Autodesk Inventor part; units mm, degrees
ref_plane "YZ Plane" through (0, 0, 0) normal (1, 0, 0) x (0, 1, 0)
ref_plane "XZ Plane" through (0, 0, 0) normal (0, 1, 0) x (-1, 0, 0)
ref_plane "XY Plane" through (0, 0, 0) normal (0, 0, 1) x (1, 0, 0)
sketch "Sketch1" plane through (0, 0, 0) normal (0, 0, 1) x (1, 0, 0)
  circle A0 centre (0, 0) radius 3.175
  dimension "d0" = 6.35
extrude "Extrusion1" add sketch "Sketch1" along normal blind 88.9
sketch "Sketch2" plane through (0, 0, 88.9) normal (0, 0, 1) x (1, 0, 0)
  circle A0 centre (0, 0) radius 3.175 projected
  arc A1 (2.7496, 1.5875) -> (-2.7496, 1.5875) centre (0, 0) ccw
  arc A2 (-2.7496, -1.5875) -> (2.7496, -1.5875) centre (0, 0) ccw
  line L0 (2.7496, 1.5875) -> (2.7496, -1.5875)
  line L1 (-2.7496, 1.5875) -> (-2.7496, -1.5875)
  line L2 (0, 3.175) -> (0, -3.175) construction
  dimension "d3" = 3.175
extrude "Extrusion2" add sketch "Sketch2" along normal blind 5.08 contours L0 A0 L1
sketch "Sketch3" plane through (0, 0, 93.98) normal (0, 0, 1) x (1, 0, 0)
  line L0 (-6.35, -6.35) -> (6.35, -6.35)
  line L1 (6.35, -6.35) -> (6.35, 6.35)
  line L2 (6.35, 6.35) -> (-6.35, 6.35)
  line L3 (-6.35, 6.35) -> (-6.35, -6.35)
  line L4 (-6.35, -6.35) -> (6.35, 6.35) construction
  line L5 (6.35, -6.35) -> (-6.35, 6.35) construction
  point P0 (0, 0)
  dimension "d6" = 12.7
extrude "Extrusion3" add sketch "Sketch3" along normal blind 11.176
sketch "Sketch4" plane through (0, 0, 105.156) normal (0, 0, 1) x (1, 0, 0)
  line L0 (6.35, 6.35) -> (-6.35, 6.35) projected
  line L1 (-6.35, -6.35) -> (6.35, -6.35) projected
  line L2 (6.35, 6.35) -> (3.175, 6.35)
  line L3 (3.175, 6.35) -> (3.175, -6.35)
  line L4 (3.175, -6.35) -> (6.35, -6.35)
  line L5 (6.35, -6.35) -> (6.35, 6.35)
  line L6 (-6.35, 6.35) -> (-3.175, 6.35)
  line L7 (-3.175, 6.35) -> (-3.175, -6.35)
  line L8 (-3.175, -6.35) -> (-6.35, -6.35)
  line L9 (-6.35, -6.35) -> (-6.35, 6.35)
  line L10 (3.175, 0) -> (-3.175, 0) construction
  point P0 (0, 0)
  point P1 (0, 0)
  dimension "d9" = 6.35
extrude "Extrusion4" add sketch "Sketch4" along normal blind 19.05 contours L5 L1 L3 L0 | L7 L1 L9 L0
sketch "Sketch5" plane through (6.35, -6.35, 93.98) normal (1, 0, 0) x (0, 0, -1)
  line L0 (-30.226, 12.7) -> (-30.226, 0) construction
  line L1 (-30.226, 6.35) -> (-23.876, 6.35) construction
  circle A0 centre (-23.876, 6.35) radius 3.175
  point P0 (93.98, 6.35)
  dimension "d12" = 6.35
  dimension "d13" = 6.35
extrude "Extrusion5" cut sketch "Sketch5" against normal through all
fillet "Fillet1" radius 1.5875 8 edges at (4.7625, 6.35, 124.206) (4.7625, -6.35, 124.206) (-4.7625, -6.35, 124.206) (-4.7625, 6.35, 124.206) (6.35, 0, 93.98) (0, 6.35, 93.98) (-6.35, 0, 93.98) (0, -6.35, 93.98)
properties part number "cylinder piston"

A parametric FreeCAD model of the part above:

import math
import FreeCAD as App
import Part
import Sketcher

V = App.Vector
Q = App.Units.Quantity


def edges_at(feature, points):
    """Names of the edges that pass closest to the given points."""
    edges = feature.Shape.Edges
    near = lambda p: min(range(len(edges)), key=lambda i: edges[i].distToShape(Part.Vertex(*p))[0])
    return sorted({f"Edge{near(p) + 1}" for p in points})


def add_polygon(sketch, points):
    """Adds a closed chain of lines whose ends are joined by coincident constraints."""
    first, n = sketch.GeometryCount, len(points)
    for a, b in zip(points, points[1:] + points[:1]):
        sketch.addGeometry(Part.LineSegment(App.Vector(*a, 0), App.Vector(*b, 0)), False)
    for i in range(n):
        sketch.addConstraint(Sketcher.Constraint("Coincident", first + i, 2, first + (i + 1) % n, 1))

doc = App.newDocument("Part")
params = doc.addObject("Spreadsheet::Sheet", "Params")
for row, (alias, value) in enumerate([
    ("sketch1_diameter", "0.25 in"),
    ("pad1_length", "3.5 in"),
    ("sketch2_radius", "0.125 in"),
    ("sketch2_height", "0.125 in"),
    ("pad2_length", "0.2 in"),
    ("sketch3_width", "0.5 in"),
    ("pad3_length", "0.44 in"),
    ("pad4_length", "0.75 in"),
    ("sketch5_diameter", "0.25 in"),
    ("fillet_radius", "0.0625 in"),
], start=1):
    params.set(f"A{row}", alias)
    params.set(f"B{row}", "=" + value)
    params.setAlias(f"B{row}", alias)

body = doc.addObject("PartDesign::Body", "Body")

sketch1 = body.newObject("Sketcher::SketchObject", "Sketch")
sketch1.AttachmentSupport = (doc.getObject("XY_Plane"), [""])
sketch1.MapMode = "FlatFace"
sketch1.addGeometry(Part.Circle(V(0, 0, 0), V(0, 0, 1), 3.2), False)
sketch1.addConstraint([
    Sketcher.Constraint("Coincident", 0, 3, -1, 1),
    Sketcher.Constraint("Diameter", 0, Q("0.25 in")),
])
sketch1.setExpression("Constraints[1]", "Params.sketch1_diameter")
pad1 = body.newObject("PartDesign::Pad", "Pad")
pad1.Profile = sketch1
pad1.setExpression("Length", "Params.pad1_length")

sketch2 = body.newObject("Sketcher::SketchObject", "Sketch001")
sketch2.AttachmentSupport = (doc.getObject("XY_Plane"), [""])
sketch2.MapMode = "FlatFace"
sketch2.AttachmentOffset = App.Placement(V(0, 0, 3.5 * 25.4), App.Rotation())
sketch2.addGeometry([
    Part.LineSegment(V(2.7, -1.6, 0), V(2.7, 1.6, 0)),
    Part.ArcOfCircle(Part.Circle(V(0, 0, 0), V(0, 0, 1), 3.2), math.radians(30), math.radians(150)),
    Part.LineSegment(V(-2.7, 1.6, 0), V(-2.7, -1.6, 0)),
    Part.ArcOfCircle(Part.Circle(V(0, 0, 0), V(0, 0, 1), 3.2), math.radians(-150), math.radians(-30)),
], False)
sketch2.addConstraint([
    Sketcher.Constraint("Coincident", 0, 2, 1, 1),
    Sketcher.Constraint("Coincident", 1, 2, 2, 1),
    Sketcher.Constraint("Coincident", 2, 2, 3, 1),
    Sketcher.Constraint("Coincident", 3, 2, 0, 1),
    Sketcher.Constraint("Vertical", 0),
    Sketcher.Constraint("Vertical", 2),
    Sketcher.Constraint("Coincident", 1, 3, -1, 1),
    Sketcher.Constraint("Coincident", 3, 3, -1, 1),
    Sketcher.Constraint("Equal", 1, 3),
    Sketcher.Constraint("Horizontal", 0, 2, 1, 2),
    Sketcher.Constraint("Radius", 1, Q("0.125 in")),
    Sketcher.Constraint("DistanceY", 0, 1, 0, 2, Q("0.125 in")),
])
sketch2.setExpression("Constraints[10]", "Params.sketch2_radius")
sketch2.setExpression("Constraints[11]", "Params.sketch2_height")
pad2 = body.newObject("PartDesign::Pad", "Pad001")
pad2.Profile = sketch2
pad2.setExpression("Length", "Params.pad2_length")

sketch3 = body.newObject("Sketcher::SketchObject", "Sketch002")
sketch3.AttachmentSupport = (doc.getObject("XY_Plane"), [""])
sketch3.MapMode = "FlatFace"
sketch3.AttachmentOffset = App.Placement(V(0, 0, 3.7 * 25.4), App.Rotation())
add_polygon(sketch3, [(-6, 6), (-6, -6), (6, -6), (6, 6)])
sketch3.addConstraint([
    Sketcher.Constraint("Vertical", 0),
    Sketcher.Constraint("Horizontal", 1),
    Sketcher.Constraint("Vertical", 2),
    Sketcher.Constraint("Horizontal", 3),
    Sketcher.Constraint("Symmetric", 0, 2, 2, 2, -1, 1),
    Sketcher.Constraint("Equal", 3, 0),
    Sketcher.Constraint("DistanceX", 1, 1, 1, 2, Q("0.5 in")),
])
sketch3.setExpression("Constraints[10]", "Params.sketch3_width")
pad3 = body.newObject("PartDesign::Pad", "Pad002")
pad3.Profile = sketch3
pad3.setExpression("Length", "Params.pad3_length")

sketch4 = body.newObject("Sketcher::SketchObject", "Sketch003")
sketch4.AttachmentSupport = (doc.getObject("XY_Plane"), [""])
sketch4.MapMode = "FlatFace"
sketch4.AttachmentOffset = App.Placement(V(0, 0, 4.14 * 25.4), App.Rotation())
add_polygon(sketch4, [(6.3, -6.3), (6.3, 6.3), (3.2, 6.3), (3.2, -6.3)])
add_polygon(sketch4, [(-3.2, -6.3), (-3.2, 6.3), (-6.3, 6.3), (-6.3, -6.3)])
sketch4.addConstraint([
    Sketcher.Constraint("Vertical", 0),
    Sketcher.Constraint("Horizontal", 1),
    Sketcher.Constraint("Vertical", 2),
    Sketcher.Constraint("Horizontal", 3),
    Sketcher.Constraint("Vertical", 4),
    Sketcher.Constraint("Horizontal", 5),
    Sketcher.Constraint("Vertical", 6),
    Sketcher.Constraint("Horizontal", 7),
    Sketcher.Constraint("Symmetric", 2, 2, 4, 2, -1, 1),
    Sketcher.Constraint("Symmetric", 0, 2, 6, 2, -1, 1),
    Sketcher.Constraint("Horizontal", 1, 2, 4, 2),
    Sketcher.Constraint("DistanceX", -1, 1, 0, 2, Q("0.25 in")),
    Sketcher.Constraint("DistanceY", -1, 1, 0, 2, Q("0.25 in")),
    Sketcher.Constraint("DistanceX", 4, 2, 1, 2, Q("0.25 in")),
])
pad4 = body.newObject("PartDesign::Pad", "Pad003")
pad4.Profile = sketch4
pad4.setExpression("Length", "Params.pad4_length")

sketch5 = body.newObject("Sketcher::SketchObject", "Sketch004")
sketch5.AttachmentSupport = (doc.getObject("YZ_Plane"), [""])
sketch5.MapMode = "FlatFace"
sketch5.AttachmentOffset = App.Placement(V(0, 0, 0.25 * 25.4), App.Rotation())
sketch5.addGeometry(Part.Circle(V(0, 117.9, 0), V(0, 0, 1), 3.2), False)
sketch5.addConstraint([
    Sketcher.Constraint("PointOnObject", 0, 3, -2),
    Sketcher.Constraint("Diameter", 0, Q("0.25 in")),
    Sketcher.Constraint("DistanceY", -1, 1, 0, 3, Q("4.64 in")),
])
sketch5.setExpression("Constraints[1]", "Params.sketch5_diameter")
pocket1 = body.newObject("PartDesign::Pocket", "Pocket")
pocket1.Profile = sketch5
pocket1.Type = "ThroughAll"
doc.recompute()

fillet = body.newObject("PartDesign::Fillet", "Fillet")
fillet.Base = (pocket1, edges_at(pocket1, [
    (4.763, 6.35, 124.206),
    (4.763, -6.35, 124.206),
    (-4.763, -6.35, 124.206),
    (-4.763, 6.35, 124.206),
    (6.35, 0, 93.98),
    (0, 6.35, 93.98),
    (-6.35, 0, 93.98),
    (0, -6.35, 93.98),
]))
fillet.setExpression("Radius", "Params.fillet_radius")

doc.recompute()
